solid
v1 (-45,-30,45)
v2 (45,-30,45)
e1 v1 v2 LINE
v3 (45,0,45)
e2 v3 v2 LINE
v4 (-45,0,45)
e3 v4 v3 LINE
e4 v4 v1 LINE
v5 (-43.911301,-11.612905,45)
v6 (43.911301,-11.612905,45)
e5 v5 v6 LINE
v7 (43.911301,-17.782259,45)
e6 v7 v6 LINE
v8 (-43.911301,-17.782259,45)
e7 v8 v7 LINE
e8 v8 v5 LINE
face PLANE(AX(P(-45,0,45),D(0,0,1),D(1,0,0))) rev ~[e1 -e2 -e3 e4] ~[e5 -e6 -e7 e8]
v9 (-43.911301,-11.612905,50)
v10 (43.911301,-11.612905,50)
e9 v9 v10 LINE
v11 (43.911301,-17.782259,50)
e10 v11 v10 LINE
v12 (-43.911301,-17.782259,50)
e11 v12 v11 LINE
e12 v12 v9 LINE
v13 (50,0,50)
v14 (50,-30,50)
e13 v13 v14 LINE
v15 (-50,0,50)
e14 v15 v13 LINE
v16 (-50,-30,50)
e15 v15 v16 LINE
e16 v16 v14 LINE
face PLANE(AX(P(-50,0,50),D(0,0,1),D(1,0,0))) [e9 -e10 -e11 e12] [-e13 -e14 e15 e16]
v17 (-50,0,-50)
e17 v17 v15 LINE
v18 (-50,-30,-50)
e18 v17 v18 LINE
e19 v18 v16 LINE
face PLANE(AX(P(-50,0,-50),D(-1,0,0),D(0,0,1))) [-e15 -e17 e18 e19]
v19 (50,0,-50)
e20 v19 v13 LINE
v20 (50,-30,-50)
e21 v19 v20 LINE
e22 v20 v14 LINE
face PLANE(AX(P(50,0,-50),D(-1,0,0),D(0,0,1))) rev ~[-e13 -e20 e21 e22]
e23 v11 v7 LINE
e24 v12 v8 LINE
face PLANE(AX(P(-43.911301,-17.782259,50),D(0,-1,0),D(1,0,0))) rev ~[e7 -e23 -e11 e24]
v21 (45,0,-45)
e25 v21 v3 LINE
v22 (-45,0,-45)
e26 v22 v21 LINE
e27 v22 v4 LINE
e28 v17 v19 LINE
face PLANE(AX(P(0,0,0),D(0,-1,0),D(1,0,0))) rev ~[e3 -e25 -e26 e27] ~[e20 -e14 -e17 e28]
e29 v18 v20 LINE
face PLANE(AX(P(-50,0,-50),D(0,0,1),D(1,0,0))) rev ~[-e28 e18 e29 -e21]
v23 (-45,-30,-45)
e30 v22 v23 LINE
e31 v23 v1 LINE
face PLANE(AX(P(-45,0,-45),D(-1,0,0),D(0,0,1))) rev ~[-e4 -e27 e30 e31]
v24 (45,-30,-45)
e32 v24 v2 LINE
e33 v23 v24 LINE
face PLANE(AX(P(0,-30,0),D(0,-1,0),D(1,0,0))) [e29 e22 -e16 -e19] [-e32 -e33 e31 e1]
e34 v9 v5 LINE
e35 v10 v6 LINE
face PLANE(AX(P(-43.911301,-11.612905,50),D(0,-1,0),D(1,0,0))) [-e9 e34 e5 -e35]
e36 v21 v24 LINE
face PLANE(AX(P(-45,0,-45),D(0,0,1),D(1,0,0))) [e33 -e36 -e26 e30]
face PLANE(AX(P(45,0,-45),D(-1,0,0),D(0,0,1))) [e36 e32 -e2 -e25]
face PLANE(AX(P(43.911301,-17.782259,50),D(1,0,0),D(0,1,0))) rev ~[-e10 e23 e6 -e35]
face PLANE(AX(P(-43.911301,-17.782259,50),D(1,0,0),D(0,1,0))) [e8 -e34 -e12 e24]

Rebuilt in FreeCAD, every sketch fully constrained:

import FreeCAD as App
import Part
import Sketcher

V = App.Vector
Q = App.Units.Quantity


def add_polygon(sketch, points):
    """Adds a closed chain of lines whose ends are joined by coincident constraints."""
    first, n = sketch.GeometryCount, len(points)
    for a, b in zip(points, points[1:] + points[:1]):
        sketch.addGeometry(Part.LineSegment(App.Vector(*a, 0), App.Vector(*b, 0)), False)
    for i in range(n):
        sketch.addConstraint(Sketcher.Constraint("Coincident", first + i, 2, first + (i + 1) % n, 1))

doc = App.newDocument("Part")
body = doc.addObject("PartDesign::Body", "Body")

sketch1 = body.newObject("Sketcher::SketchObject", "Sketch")
sketch1.AttachmentSupport = (doc.getObject("XZ_Plane"), [""])
sketch1.MapMode = "FlatFace"
add_polygon(sketch1, [(-50, 50), (-50, -50), (50, -50), (50, 50)])
add_polygon(sketch1, [(45, -45), (-45, -45), (-45, 45), (45, 45)])
sketch1.addConstraint(Sketcher.Constraint("Vertical", 0))
sketch1.addConstraint(Sketcher.Constraint("Horizontal", 1))
sketch1.addConstraint(Sketcher.Constraint("Vertical", 2))
sketch1.addConstraint(Sketcher.Constraint("Horizontal", 3))
sketch1.addConstraint(Sketcher.Constraint("Horizontal", 4))
sketch1.addConstraint(Sketcher.Constraint("Vertical", 5))
sketch1.addConstraint(Sketcher.Constraint("Horizontal", 6))
sketch1.addConstraint(Sketcher.Constraint("Vertical", 7))
sketch1.addConstraint(Sketcher.Constraint("Symmetric", 0, 2, 2, 2, -1, 1))
sketch1.addConstraint(Sketcher.Constraint("Symmetric", 4, 2, 6, 2, -1, 1))
sketch1.addConstraint(Sketcher.Constraint("Equal", 3, 0))
sketch1.addConstraint(Sketcher.Constraint("Equal", 6, 5))
sketch1.addConstraint(Sketcher.Constraint("DistanceX", 1, 1, 1, 2, Q("100 mm")))
sketch1.addConstraint(Sketcher.Constraint("DistanceX", 4, 2, 4, 1, Q("90 mm")))
pad1 = body.newObject("PartDesign::Pad", "Pad")
pad1.Profile = sketch1
pad1.Length = 30

sketch2 = body.newObject("Sketcher::SketchObject", "Sketch001")
sketch2.AttachmentSupport = (doc.getObject("XY_Plane"), [""])
sketch2.MapMode = "FlatFace"
sketch2.AttachmentOffset = App.Placement(V(0, 0, 50), App.Rotation())
add_polygon(sketch2, [(-44, -12), (-44, -18), (44, -18), (44, -12)])
sketch2.addConstraint(Sketcher.Constraint("Vertical", 0))
sketch2.addConstraint(Sketcher.Constraint("Horizontal", 1))
sketch2.addConstraint(Sketcher.Constraint("Vertical", 2))
sketch2.addConstraint(Sketcher.Constraint("Horizontal", 3))
sketch2.addConstraint(Sketcher.Constraint("DistanceX", 0, 2, -1, 1, Q("43.911301 mm")))
sketch2.addConstraint(Sketcher.Constraint("DistanceX", -1, 1, 1, 2, Q("43.911301 mm")))
sketch2.addConstraint(Sketcher.Constraint("DistanceY", 0, 2, 0, 1, Q("6.169355 mm")))
sketch2.addConstraint(Sketcher.Constraint("DistanceY", 0, 2, -1, 1, Q("17.782259 mm")))
pocket1 = body.newObject("PartDesign::Pocket", "Pocket")
pocket1.Profile = sketch2
pocket1.Length = 25

doc.recompute()
